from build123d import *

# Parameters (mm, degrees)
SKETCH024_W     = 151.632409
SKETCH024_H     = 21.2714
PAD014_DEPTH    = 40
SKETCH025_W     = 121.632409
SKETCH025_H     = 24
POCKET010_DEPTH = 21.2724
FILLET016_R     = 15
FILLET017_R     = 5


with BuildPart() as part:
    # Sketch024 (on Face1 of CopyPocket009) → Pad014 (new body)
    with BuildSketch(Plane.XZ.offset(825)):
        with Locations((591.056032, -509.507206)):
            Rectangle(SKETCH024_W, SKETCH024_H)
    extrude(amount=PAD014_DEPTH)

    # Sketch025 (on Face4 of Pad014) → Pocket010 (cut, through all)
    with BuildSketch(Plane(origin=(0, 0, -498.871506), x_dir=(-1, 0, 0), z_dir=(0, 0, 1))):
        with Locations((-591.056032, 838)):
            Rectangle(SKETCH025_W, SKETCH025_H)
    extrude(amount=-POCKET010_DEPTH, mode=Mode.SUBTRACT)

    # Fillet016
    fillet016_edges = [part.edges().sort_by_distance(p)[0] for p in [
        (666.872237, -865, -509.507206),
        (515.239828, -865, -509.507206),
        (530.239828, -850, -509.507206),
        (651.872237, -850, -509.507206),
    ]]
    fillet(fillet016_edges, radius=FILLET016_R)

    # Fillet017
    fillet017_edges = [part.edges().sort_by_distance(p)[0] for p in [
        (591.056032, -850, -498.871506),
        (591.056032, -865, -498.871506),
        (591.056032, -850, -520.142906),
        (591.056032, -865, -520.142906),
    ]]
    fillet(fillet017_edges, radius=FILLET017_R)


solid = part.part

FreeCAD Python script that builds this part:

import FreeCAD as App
import Part
import Sketcher
from FreeCAD import Vector


def edges_at(feature, points):
    """Names of the edges that pass closest to the given points."""
    edges = feature.Shape.Edges
    near = lambda p: min(range(len(edges)), key=lambda i: edges[i].distToShape(Part.Vertex(*p))[0])
    return sorted({f"Edge{near(p) + 1}" for p in points})

doc = App.newDocument("Part")
body = doc.addObject("PartDesign::Body", "Body")

# Sketch on XZ plane
sketch1 = body.newObject("Sketcher::SketchObject", "Sketch")
sketch1.AttachmentSupport = (doc.getObject("XZ_Plane"), [""])
sketch1.MapMode = "FlatFace"
sketch1.AttachmentOffset = App.Placement(Vector(0, 0, 825), App.Rotation())
sketch1.addGeometry([
    Part.LineSegment(Vector(515.239828, -498.871506, 0), Vector(515.239828, -520.142906, 0)),
    Part.LineSegment(Vector(515.239828, -520.142906, 0), Vector(666.872236, -520.142906, 0)),
    Part.LineSegment(Vector(666.872236, -520.142906, 0), Vector(666.872236, -498.871506, 0)),
    Part.LineSegment(Vector(666.872236, -498.871506, 0), Vector(515.239828, -498.871506, 0)),
], False)
sketch1.addConstraint([
    Sketcher.Constraint("Coincident", 0, 2, 1, 1),
    Sketcher.Constraint("Coincident", 1, 2, 2, 1),
    Sketcher.Constraint("Coincident", 2, 2, 3, 1),
    Sketcher.Constraint("Coincident", 3, 2, 0, 1),
    Sketcher.Constraint("Vertical", 0),
    Sketcher.Constraint("Horizontal", 1),
    Sketcher.Constraint("Vertical", 2),
    Sketcher.Constraint("Horizontal", 3),
    Sketcher.Constraint("DistanceY", 0, 2, 0, 1, 21.2714),
    Sketcher.Constraint("DistanceX", 1, 1, 1, 2, 151.632409),
    Sketcher.Constraint("DistanceX", -1, 1, 0, 2, 515.239828),
    Sketcher.Constraint("DistanceY", 0, 2, -1, 1, 520.142906),
])
pad1 = body.newObject("PartDesign::Pad", "Pad")
pad1.Profile = sketch1
pad1.Length = 40

# Sketch on XY plane
sketch2 = body.newObject("Sketcher::SketchObject", "Sketch001")
sketch2.AttachmentSupport = (doc.getObject("XY_Plane"), [""])
sketch2.MapMode = "FlatFace"
sketch2.AttachmentOffset = App.Placement(Vector(0, 0, -498.871506), App.Rotation())
sketch2.addGeometry([
    Part.LineSegment(Vector(651.872236, -850, 0), Vector(651.872236, -826, 0)),
    Part.LineSegment(Vector(651.872236, -826, 0), Vector(530.239828, -826, 0)),
    Part.LineSegment(Vector(530.239828, -826, 0), Vector(530.239828, -850, 0)),
    Part.LineSegment(Vector(530.239828, -850, 0), Vector(651.872236, -850, 0)),
], False)
sketch2.addConstraint([
    Sketcher.Constraint("Coincident", 0, 2, 1, 1),
    Sketcher.Constraint("Coincident", 1, 2, 2, 1),
    Sketcher.Constraint("Coincident", 2, 2, 3, 1),
    Sketcher.Constraint("Coincident", 3, 2, 0, 1),
    Sketcher.Constraint("Vertical", 0),
    Sketcher.Constraint("Horizontal", 1),
    Sketcher.Constraint("Vertical", 2),
    Sketcher.Constraint("Horizontal", 3),
    Sketcher.Constraint("DistanceY", 0, 1, 0, 2, 24.0),
    Sketcher.Constraint("DistanceY", 0, 2, -1, 1, 826.0),
    Sketcher.Constraint("DistanceX", 1, 2, 1, 1, 121.632409),
    Sketcher.Constraint("DistanceX", -1, 1, 0, 2, 651.872236),
])
pocket1 = body.newObject("PartDesign::Pocket", "Pocket")
pocket1.Profile = sketch2
pocket1.Type = "ThroughAll"
doc.recompute()

fillet = body.newObject("PartDesign::Fillet", "Fillet")
fillet.Base = (pocket1, edges_at(pocket1, [
    (666.872, -865, -509.507),
    (515.24, -865, -509.507),
    (530.24, -850, -509.507),
    (651.872, -850, -509.507),
]))
fillet.Radius = 15
doc.recompute()

fillet2 = body.newObject("PartDesign::Fillet", "Fillet001")
fillet2.Base = (fillet, edges_at(fillet, [
    (591.056, -850, -498.872),
    (591.056, -865, -498.872),
    (591.056, -850, -520.143),
    (591.056, -865, -520.143),
]))
fillet2.Radius = 5

doc.recompute()
